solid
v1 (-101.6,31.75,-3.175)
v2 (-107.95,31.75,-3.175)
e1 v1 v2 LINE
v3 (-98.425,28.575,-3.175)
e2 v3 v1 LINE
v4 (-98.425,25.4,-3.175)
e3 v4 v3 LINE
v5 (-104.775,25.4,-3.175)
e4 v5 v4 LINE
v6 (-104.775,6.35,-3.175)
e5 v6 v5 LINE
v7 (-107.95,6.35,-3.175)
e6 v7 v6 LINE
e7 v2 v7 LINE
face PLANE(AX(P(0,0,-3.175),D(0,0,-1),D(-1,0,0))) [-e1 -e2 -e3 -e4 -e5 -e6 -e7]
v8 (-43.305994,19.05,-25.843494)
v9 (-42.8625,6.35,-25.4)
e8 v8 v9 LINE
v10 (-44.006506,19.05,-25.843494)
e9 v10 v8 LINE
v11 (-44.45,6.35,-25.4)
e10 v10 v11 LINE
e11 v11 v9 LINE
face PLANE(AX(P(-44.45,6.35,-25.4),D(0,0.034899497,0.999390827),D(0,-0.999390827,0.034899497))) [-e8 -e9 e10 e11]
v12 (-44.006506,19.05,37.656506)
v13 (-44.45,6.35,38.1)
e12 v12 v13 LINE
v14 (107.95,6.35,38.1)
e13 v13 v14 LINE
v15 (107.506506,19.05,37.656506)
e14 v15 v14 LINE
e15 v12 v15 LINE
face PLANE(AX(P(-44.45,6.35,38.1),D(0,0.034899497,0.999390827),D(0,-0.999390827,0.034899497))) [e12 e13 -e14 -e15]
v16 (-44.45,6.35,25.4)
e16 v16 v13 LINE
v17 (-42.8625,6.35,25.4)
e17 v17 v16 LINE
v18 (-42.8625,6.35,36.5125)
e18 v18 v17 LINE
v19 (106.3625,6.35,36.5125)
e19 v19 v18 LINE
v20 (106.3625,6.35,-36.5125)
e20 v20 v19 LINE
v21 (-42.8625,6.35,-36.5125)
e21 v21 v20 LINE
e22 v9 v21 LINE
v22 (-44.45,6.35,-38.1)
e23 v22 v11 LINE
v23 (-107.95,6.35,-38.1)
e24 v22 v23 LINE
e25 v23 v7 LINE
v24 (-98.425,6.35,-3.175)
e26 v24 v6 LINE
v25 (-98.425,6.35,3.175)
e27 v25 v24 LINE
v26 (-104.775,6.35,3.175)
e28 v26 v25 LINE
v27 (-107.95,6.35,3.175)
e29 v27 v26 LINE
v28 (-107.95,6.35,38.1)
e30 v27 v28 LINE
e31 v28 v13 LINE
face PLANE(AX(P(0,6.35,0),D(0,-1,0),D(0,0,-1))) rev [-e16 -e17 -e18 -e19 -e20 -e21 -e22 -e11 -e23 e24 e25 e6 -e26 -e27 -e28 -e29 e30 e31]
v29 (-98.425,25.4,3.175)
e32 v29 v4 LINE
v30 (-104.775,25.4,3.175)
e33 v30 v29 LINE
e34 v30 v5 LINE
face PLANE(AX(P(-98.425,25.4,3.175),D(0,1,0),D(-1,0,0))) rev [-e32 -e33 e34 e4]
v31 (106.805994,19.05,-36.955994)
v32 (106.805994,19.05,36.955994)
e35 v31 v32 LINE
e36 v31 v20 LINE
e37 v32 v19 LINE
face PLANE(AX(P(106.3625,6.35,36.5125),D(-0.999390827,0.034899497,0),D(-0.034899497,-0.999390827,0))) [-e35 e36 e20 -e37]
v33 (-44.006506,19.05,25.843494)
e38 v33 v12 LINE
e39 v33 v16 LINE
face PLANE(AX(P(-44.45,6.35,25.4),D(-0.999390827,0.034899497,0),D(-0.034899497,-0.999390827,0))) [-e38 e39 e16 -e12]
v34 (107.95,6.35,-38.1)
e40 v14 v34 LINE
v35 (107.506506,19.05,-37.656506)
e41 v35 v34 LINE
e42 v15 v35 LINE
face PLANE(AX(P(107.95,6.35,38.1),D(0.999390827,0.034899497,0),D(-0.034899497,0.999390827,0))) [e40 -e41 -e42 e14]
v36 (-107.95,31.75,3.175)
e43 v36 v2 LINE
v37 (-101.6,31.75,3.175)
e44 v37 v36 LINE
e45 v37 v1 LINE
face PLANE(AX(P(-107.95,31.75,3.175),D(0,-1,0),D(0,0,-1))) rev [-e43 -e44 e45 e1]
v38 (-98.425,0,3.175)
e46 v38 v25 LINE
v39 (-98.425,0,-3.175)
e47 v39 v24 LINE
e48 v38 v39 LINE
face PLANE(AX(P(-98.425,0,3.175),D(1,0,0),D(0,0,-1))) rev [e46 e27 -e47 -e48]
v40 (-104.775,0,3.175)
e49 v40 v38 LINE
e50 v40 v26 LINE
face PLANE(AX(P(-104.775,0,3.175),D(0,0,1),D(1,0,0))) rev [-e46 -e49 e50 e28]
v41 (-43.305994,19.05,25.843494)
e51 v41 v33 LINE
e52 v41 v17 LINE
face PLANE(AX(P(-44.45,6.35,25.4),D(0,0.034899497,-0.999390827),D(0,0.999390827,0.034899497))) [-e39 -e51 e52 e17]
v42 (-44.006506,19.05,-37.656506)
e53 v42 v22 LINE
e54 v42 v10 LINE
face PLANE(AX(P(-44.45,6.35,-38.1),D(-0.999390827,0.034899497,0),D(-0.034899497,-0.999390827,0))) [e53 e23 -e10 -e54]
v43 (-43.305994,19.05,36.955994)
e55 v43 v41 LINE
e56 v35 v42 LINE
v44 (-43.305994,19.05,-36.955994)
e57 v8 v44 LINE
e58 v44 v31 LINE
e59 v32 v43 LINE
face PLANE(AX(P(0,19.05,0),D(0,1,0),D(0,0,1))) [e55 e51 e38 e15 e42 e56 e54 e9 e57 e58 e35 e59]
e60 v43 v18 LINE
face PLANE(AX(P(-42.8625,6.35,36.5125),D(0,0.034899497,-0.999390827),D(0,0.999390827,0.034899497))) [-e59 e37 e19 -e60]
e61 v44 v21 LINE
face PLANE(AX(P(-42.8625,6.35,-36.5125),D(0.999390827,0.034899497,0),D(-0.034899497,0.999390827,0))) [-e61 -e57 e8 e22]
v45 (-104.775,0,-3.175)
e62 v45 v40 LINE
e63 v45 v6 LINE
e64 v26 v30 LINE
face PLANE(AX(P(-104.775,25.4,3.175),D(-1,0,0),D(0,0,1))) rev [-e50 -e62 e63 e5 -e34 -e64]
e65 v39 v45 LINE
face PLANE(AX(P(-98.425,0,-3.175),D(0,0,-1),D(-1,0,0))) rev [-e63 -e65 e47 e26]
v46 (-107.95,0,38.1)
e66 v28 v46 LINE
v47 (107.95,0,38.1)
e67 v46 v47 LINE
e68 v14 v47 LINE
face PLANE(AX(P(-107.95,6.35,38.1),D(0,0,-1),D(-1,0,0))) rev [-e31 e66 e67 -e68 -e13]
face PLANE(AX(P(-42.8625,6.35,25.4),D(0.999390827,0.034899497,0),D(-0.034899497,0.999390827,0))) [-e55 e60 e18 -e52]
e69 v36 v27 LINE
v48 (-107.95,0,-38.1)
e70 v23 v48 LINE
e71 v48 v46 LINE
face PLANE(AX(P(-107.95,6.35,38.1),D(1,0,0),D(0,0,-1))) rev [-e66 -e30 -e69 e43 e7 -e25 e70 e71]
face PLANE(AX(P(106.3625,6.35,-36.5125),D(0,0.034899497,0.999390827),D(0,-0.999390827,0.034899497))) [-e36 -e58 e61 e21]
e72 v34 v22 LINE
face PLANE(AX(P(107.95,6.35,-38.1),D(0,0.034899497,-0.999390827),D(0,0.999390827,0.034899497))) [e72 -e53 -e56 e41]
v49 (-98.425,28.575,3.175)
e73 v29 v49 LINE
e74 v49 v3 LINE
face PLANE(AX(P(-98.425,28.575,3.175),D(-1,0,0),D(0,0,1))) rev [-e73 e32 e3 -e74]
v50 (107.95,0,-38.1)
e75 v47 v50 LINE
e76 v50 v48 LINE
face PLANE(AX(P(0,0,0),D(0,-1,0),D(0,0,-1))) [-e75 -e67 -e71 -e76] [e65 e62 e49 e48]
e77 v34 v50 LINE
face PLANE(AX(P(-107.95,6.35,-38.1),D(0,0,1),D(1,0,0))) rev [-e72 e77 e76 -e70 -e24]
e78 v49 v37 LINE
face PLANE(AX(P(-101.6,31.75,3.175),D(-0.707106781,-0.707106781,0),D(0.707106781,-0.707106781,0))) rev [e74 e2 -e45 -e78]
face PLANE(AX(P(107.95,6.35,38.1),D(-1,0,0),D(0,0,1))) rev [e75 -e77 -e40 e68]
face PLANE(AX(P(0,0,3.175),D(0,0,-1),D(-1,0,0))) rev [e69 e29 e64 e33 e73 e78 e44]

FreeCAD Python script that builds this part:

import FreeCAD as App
import Part
import Sketcher
Q = App.Units.Quantity


def add_polygon(sketch, points):
    """Adds a closed chain of lines whose ends are joined by coincident constraints."""
    first, n = sketch.GeometryCount, len(points)
    for a, b in zip(points, points[1:] + points[:1]):
        sketch.addGeometry(Part.LineSegment(App.Vector(*a, 0), App.Vector(*b, 0)), False)
    for i in range(n):
        sketch.addConstraint(Sketcher.Constraint("Coincident", first + i, 2, first + (i + 1) % n, 1))

doc = App.newDocument("Part")
params = doc.addObject("Spreadsheet::Sheet", "Params")
for row, (alias, value) in enumerate([
    ("sketch1_height", "3 in"),
    ("sketch1_width", "8.5 in"),
    ("pad1_length", "0.25 in"),
    ("sketch2_width", "6 in"),
    ("sketch2_height", "3 in"),
    ("sketch2_height2", "0.5 in"),
    ("sketch2_width2", "0.0625 in"),
    ("sketch2_width3", "5.875 in"),
    ("pad2_length", "0.5 in"),
    ("pad2_taper", "-2 deg"),
    ("sketch3_height", "1 in"),
    ("sketch3_width", "0.25 in"),
    ("sketch3_height2", "0.75 in"),
    ("pad3_length", "0.25 in"),
    ("sketch4_width", "0.25 in"),
], start=1):
    params.set(f"A{row}", alias)
    params.set(f"B{row}", "=" + value)
    params.setAlias(f"B{row}", alias)

body = doc.addObject("PartDesign::Body", "Body")

sketch1 = body.newObject("Sketcher::SketchObject", "Sketch")
sketch1.AttachmentSupport = (doc.getObject("XZ_Plane"), [""])
sketch1.MapMode = "FlatFace"
add_polygon(sketch1, [(-108, -38), (-108, 38), (108, 38), (108, -38)])
sketch1.addConstraint([
    Sketcher.Constraint("Vertical", 0),
    Sketcher.Constraint("Horizontal", 1),
    Sketcher.Constraint("Vertical", 2),
    Sketcher.Constraint("Horizontal", 3),
    Sketcher.Constraint("Symmetric", 0, 2, 2, 2, -1, 1),
    Sketcher.Constraint("DistanceY", 0, 1, 0, 2, Q("3 in")),
    Sketcher.Constraint("DistanceX", 1, 1, 1, 2, Q("8.5 in")),
])
sketch1.setExpression("Constraints[9]", "Params.sketch1_height")
sketch1.setExpression("Constraints[10]", "Params.sketch1_width")
pad1 = body.newObject("PartDesign::Pad", "Pad")
pad1.Profile = sketch1
pad1.setExpression("Length", "Params.pad1_length")
pad1.Reversed = True

sketch2 = body.newObject("Sketcher::SketchObject", "Sketch001")
sketch2.AttachmentSupport = (doc.getObject("XZ_Plane"), [""])
sketch2.MapMode = "FlatFace"
sketch2.AttachmentOffset = App.Placement(App.Vector(0, 0, -0.25 * 25.4), App.Rotation())
add_polygon(sketch2, [(-44.5, 38.1), (108, 38.1), (108, -38.1), (-44.5, -38.1), (-44.5, -25.4), (-42.9, -25.4), (-42.9, -36.5), (106.4, -36.5), (106.4, 36.5), (-42.9, 36.5), (-42.9, 25.4), (-44.5, 25.4)])
sketch2.addConstraint([
    Sketcher.Constraint("Horizontal", 0),
    Sketcher.Constraint("Vertical", 1),
    Sketcher.Constraint("Horizontal", 2),
    Sketcher.Constraint("Vertical", 3),
    Sketcher.Constraint("Horizontal", 4),
    Sketcher.Constraint("Vertical", 5),
    Sketcher.Constraint("Horizontal", 6),
    Sketcher.Constraint("Vertical", 7),
    Sketcher.Constraint("Horizontal", 8),
    Sketcher.Constraint("Vertical", 9),
    Sketcher.Constraint("Horizontal", 10),
    Sketcher.Constraint("Vertical", 11),
    Sketcher.Constraint("Symmetric", 5, 2, 8, 2, -1),
    Sketcher.Constraint("Symmetric", 3, 2, 10, 2, -1),
    Sketcher.Constraint("Equal", 3, 11),
    Sketcher.Constraint("DistanceX", 0, 1, 0, 2, Q("6 in")),
    Sketcher.Constraint("DistanceY", 1, 2, 1, 1, Q("3 in")),
    Sketcher.Constraint("DistanceY", 3, 1, 3, 2, Q("0.5 in")),
    Sketcher.Constraint("DistanceX", 4, 1, 4, 2, Q("0.0625 in")),
    Sketcher.Constraint("DistanceX", 6, 1, 6, 2, Q("5.875 in")),
    Sketcher.Constraint("DistanceY", 5, 2, 5, 1, Q("0.4375 in")),
    Sketcher.Constraint("DistanceX", -1, 1, 0, 2, Q("4.25 in")),
])
sketch2.setExpression("Constraints[27]", "Params.sketch2_width")
sketch2.setExpression("Constraints[28]", "Params.sketch2_height")
sketch2.setExpression("Constraints[29]", "Params.sketch2_height2")
sketch2.setExpression("Constraints[30]", "Params.sketch2_width2")
sketch2.setExpression("Constraints[31]", "Params.sketch2_width3")
pad2 = body.newObject("PartDesign::Pad", "Pad001")
pad2.Profile = sketch2
pad2.setExpression("Length", "Params.pad2_length")
pad2.Reversed = True
pad2.setExpression("TaperAngle", "Params.pad2_taper")

sketch3 = body.newObject("Sketcher::SketchObject", "Sketch002")
sketch3.AttachmentSupport = (doc.getObject("XY_Plane"), [""])
sketch3.MapMode = "FlatFace"
add_polygon(sketch3, [(-108, 31.8), (-108, 6.3), (-104.8, 6.3), (-104.8, 25.4), (-98.4, 25.4), (-98.4, 28.6), (-101.6, 31.8)])
sketch3.addConstraint([
    Sketcher.Constraint("Vertical", 0),
    Sketcher.Constraint("Horizontal", 1),
    Sketcher.Constraint("Vertical", 2),
    Sketcher.Constraint("Horizontal", 3),
    Sketcher.Constraint("Vertical", 4),
    Sketcher.Constraint("Horizontal", 6),
    Sketcher.Constraint("Equal", 3, 6),
    Sketcher.Constraint("Equal", 1, 4),
    Sketcher.Constraint("DistanceY", 0, 2, 0, 1, Q("1 in")),
    Sketcher.Constraint("DistanceY", -1, 1, 2, 2, Q("1 in")),
    Sketcher.Constraint("DistanceX", 5, 2, -1, 1, Q("4 in")),
    Sketcher.Constraint("Angle", 5, Q("135 deg")),
    Sketcher.Constraint("DistanceX", 3, 1, 3, 2, Q("0.25 in")),
    Sketcher.Constraint("DistanceY", 2, 1, 2, 2, Q("0.75 in")),
])
sketch3.setExpression("Constraints[15]", "Params.sketch3_height")
sketch3.setExpression("Constraints[19]", "Params.sketch3_width")
sketch3.setExpression("Constraints[20]", "Params.sketch3_height2")
pad3 = body.newObject("PartDesign::Pad", "Pad002")
pad3.Profile = sketch3
pad3.setExpression("Length", "Params.pad3_length")
pad3.Midplane = True

sketch4 = body.newObject("Sketcher::SketchObject", "Sketch003")
sketch4.AttachmentSupport = (doc.getObject("XZ_Plane"), [""])
sketch4.MapMode = "FlatFace"
sketch4.AttachmentOffset = App.Placement(App.Vector(0, 0, -0.25 * 25.4), App.Rotation())
add_polygon(sketch4, [(-105, -3), (-105, 3), (-98, 3), (-98, -3)])
sketch4.addConstraint([
    Sketcher.Constraint("Vertical", 0),
    Sketcher.Constraint("Horizontal", 1),
    Sketcher.Constraint("Vertical", 2),
    Sketcher.Constraint("Horizontal", 3),
    Sketcher.Constraint("Equal", 3, 0),
    Sketcher.Constraint("DistanceX", 1, 1, 1, 2, Q("0.25 in")),
    Sketcher.Constraint("DistanceX", 0, 2, -1, 1, Q("4.125 in")),
    Sketcher.Constraint("DistanceY", -1, 1, 0, 2, Q("0.125 in")),
])
sketch4.setExpression("Constraints[9]", "Params.sketch4_width")
pocket1 = body.newObject("PartDesign::Pocket", "Pocket")
pocket1.Profile = sketch4
pocket1.Type = "ThroughAll"
pocket1.Reversed = True

doc.recompute()
